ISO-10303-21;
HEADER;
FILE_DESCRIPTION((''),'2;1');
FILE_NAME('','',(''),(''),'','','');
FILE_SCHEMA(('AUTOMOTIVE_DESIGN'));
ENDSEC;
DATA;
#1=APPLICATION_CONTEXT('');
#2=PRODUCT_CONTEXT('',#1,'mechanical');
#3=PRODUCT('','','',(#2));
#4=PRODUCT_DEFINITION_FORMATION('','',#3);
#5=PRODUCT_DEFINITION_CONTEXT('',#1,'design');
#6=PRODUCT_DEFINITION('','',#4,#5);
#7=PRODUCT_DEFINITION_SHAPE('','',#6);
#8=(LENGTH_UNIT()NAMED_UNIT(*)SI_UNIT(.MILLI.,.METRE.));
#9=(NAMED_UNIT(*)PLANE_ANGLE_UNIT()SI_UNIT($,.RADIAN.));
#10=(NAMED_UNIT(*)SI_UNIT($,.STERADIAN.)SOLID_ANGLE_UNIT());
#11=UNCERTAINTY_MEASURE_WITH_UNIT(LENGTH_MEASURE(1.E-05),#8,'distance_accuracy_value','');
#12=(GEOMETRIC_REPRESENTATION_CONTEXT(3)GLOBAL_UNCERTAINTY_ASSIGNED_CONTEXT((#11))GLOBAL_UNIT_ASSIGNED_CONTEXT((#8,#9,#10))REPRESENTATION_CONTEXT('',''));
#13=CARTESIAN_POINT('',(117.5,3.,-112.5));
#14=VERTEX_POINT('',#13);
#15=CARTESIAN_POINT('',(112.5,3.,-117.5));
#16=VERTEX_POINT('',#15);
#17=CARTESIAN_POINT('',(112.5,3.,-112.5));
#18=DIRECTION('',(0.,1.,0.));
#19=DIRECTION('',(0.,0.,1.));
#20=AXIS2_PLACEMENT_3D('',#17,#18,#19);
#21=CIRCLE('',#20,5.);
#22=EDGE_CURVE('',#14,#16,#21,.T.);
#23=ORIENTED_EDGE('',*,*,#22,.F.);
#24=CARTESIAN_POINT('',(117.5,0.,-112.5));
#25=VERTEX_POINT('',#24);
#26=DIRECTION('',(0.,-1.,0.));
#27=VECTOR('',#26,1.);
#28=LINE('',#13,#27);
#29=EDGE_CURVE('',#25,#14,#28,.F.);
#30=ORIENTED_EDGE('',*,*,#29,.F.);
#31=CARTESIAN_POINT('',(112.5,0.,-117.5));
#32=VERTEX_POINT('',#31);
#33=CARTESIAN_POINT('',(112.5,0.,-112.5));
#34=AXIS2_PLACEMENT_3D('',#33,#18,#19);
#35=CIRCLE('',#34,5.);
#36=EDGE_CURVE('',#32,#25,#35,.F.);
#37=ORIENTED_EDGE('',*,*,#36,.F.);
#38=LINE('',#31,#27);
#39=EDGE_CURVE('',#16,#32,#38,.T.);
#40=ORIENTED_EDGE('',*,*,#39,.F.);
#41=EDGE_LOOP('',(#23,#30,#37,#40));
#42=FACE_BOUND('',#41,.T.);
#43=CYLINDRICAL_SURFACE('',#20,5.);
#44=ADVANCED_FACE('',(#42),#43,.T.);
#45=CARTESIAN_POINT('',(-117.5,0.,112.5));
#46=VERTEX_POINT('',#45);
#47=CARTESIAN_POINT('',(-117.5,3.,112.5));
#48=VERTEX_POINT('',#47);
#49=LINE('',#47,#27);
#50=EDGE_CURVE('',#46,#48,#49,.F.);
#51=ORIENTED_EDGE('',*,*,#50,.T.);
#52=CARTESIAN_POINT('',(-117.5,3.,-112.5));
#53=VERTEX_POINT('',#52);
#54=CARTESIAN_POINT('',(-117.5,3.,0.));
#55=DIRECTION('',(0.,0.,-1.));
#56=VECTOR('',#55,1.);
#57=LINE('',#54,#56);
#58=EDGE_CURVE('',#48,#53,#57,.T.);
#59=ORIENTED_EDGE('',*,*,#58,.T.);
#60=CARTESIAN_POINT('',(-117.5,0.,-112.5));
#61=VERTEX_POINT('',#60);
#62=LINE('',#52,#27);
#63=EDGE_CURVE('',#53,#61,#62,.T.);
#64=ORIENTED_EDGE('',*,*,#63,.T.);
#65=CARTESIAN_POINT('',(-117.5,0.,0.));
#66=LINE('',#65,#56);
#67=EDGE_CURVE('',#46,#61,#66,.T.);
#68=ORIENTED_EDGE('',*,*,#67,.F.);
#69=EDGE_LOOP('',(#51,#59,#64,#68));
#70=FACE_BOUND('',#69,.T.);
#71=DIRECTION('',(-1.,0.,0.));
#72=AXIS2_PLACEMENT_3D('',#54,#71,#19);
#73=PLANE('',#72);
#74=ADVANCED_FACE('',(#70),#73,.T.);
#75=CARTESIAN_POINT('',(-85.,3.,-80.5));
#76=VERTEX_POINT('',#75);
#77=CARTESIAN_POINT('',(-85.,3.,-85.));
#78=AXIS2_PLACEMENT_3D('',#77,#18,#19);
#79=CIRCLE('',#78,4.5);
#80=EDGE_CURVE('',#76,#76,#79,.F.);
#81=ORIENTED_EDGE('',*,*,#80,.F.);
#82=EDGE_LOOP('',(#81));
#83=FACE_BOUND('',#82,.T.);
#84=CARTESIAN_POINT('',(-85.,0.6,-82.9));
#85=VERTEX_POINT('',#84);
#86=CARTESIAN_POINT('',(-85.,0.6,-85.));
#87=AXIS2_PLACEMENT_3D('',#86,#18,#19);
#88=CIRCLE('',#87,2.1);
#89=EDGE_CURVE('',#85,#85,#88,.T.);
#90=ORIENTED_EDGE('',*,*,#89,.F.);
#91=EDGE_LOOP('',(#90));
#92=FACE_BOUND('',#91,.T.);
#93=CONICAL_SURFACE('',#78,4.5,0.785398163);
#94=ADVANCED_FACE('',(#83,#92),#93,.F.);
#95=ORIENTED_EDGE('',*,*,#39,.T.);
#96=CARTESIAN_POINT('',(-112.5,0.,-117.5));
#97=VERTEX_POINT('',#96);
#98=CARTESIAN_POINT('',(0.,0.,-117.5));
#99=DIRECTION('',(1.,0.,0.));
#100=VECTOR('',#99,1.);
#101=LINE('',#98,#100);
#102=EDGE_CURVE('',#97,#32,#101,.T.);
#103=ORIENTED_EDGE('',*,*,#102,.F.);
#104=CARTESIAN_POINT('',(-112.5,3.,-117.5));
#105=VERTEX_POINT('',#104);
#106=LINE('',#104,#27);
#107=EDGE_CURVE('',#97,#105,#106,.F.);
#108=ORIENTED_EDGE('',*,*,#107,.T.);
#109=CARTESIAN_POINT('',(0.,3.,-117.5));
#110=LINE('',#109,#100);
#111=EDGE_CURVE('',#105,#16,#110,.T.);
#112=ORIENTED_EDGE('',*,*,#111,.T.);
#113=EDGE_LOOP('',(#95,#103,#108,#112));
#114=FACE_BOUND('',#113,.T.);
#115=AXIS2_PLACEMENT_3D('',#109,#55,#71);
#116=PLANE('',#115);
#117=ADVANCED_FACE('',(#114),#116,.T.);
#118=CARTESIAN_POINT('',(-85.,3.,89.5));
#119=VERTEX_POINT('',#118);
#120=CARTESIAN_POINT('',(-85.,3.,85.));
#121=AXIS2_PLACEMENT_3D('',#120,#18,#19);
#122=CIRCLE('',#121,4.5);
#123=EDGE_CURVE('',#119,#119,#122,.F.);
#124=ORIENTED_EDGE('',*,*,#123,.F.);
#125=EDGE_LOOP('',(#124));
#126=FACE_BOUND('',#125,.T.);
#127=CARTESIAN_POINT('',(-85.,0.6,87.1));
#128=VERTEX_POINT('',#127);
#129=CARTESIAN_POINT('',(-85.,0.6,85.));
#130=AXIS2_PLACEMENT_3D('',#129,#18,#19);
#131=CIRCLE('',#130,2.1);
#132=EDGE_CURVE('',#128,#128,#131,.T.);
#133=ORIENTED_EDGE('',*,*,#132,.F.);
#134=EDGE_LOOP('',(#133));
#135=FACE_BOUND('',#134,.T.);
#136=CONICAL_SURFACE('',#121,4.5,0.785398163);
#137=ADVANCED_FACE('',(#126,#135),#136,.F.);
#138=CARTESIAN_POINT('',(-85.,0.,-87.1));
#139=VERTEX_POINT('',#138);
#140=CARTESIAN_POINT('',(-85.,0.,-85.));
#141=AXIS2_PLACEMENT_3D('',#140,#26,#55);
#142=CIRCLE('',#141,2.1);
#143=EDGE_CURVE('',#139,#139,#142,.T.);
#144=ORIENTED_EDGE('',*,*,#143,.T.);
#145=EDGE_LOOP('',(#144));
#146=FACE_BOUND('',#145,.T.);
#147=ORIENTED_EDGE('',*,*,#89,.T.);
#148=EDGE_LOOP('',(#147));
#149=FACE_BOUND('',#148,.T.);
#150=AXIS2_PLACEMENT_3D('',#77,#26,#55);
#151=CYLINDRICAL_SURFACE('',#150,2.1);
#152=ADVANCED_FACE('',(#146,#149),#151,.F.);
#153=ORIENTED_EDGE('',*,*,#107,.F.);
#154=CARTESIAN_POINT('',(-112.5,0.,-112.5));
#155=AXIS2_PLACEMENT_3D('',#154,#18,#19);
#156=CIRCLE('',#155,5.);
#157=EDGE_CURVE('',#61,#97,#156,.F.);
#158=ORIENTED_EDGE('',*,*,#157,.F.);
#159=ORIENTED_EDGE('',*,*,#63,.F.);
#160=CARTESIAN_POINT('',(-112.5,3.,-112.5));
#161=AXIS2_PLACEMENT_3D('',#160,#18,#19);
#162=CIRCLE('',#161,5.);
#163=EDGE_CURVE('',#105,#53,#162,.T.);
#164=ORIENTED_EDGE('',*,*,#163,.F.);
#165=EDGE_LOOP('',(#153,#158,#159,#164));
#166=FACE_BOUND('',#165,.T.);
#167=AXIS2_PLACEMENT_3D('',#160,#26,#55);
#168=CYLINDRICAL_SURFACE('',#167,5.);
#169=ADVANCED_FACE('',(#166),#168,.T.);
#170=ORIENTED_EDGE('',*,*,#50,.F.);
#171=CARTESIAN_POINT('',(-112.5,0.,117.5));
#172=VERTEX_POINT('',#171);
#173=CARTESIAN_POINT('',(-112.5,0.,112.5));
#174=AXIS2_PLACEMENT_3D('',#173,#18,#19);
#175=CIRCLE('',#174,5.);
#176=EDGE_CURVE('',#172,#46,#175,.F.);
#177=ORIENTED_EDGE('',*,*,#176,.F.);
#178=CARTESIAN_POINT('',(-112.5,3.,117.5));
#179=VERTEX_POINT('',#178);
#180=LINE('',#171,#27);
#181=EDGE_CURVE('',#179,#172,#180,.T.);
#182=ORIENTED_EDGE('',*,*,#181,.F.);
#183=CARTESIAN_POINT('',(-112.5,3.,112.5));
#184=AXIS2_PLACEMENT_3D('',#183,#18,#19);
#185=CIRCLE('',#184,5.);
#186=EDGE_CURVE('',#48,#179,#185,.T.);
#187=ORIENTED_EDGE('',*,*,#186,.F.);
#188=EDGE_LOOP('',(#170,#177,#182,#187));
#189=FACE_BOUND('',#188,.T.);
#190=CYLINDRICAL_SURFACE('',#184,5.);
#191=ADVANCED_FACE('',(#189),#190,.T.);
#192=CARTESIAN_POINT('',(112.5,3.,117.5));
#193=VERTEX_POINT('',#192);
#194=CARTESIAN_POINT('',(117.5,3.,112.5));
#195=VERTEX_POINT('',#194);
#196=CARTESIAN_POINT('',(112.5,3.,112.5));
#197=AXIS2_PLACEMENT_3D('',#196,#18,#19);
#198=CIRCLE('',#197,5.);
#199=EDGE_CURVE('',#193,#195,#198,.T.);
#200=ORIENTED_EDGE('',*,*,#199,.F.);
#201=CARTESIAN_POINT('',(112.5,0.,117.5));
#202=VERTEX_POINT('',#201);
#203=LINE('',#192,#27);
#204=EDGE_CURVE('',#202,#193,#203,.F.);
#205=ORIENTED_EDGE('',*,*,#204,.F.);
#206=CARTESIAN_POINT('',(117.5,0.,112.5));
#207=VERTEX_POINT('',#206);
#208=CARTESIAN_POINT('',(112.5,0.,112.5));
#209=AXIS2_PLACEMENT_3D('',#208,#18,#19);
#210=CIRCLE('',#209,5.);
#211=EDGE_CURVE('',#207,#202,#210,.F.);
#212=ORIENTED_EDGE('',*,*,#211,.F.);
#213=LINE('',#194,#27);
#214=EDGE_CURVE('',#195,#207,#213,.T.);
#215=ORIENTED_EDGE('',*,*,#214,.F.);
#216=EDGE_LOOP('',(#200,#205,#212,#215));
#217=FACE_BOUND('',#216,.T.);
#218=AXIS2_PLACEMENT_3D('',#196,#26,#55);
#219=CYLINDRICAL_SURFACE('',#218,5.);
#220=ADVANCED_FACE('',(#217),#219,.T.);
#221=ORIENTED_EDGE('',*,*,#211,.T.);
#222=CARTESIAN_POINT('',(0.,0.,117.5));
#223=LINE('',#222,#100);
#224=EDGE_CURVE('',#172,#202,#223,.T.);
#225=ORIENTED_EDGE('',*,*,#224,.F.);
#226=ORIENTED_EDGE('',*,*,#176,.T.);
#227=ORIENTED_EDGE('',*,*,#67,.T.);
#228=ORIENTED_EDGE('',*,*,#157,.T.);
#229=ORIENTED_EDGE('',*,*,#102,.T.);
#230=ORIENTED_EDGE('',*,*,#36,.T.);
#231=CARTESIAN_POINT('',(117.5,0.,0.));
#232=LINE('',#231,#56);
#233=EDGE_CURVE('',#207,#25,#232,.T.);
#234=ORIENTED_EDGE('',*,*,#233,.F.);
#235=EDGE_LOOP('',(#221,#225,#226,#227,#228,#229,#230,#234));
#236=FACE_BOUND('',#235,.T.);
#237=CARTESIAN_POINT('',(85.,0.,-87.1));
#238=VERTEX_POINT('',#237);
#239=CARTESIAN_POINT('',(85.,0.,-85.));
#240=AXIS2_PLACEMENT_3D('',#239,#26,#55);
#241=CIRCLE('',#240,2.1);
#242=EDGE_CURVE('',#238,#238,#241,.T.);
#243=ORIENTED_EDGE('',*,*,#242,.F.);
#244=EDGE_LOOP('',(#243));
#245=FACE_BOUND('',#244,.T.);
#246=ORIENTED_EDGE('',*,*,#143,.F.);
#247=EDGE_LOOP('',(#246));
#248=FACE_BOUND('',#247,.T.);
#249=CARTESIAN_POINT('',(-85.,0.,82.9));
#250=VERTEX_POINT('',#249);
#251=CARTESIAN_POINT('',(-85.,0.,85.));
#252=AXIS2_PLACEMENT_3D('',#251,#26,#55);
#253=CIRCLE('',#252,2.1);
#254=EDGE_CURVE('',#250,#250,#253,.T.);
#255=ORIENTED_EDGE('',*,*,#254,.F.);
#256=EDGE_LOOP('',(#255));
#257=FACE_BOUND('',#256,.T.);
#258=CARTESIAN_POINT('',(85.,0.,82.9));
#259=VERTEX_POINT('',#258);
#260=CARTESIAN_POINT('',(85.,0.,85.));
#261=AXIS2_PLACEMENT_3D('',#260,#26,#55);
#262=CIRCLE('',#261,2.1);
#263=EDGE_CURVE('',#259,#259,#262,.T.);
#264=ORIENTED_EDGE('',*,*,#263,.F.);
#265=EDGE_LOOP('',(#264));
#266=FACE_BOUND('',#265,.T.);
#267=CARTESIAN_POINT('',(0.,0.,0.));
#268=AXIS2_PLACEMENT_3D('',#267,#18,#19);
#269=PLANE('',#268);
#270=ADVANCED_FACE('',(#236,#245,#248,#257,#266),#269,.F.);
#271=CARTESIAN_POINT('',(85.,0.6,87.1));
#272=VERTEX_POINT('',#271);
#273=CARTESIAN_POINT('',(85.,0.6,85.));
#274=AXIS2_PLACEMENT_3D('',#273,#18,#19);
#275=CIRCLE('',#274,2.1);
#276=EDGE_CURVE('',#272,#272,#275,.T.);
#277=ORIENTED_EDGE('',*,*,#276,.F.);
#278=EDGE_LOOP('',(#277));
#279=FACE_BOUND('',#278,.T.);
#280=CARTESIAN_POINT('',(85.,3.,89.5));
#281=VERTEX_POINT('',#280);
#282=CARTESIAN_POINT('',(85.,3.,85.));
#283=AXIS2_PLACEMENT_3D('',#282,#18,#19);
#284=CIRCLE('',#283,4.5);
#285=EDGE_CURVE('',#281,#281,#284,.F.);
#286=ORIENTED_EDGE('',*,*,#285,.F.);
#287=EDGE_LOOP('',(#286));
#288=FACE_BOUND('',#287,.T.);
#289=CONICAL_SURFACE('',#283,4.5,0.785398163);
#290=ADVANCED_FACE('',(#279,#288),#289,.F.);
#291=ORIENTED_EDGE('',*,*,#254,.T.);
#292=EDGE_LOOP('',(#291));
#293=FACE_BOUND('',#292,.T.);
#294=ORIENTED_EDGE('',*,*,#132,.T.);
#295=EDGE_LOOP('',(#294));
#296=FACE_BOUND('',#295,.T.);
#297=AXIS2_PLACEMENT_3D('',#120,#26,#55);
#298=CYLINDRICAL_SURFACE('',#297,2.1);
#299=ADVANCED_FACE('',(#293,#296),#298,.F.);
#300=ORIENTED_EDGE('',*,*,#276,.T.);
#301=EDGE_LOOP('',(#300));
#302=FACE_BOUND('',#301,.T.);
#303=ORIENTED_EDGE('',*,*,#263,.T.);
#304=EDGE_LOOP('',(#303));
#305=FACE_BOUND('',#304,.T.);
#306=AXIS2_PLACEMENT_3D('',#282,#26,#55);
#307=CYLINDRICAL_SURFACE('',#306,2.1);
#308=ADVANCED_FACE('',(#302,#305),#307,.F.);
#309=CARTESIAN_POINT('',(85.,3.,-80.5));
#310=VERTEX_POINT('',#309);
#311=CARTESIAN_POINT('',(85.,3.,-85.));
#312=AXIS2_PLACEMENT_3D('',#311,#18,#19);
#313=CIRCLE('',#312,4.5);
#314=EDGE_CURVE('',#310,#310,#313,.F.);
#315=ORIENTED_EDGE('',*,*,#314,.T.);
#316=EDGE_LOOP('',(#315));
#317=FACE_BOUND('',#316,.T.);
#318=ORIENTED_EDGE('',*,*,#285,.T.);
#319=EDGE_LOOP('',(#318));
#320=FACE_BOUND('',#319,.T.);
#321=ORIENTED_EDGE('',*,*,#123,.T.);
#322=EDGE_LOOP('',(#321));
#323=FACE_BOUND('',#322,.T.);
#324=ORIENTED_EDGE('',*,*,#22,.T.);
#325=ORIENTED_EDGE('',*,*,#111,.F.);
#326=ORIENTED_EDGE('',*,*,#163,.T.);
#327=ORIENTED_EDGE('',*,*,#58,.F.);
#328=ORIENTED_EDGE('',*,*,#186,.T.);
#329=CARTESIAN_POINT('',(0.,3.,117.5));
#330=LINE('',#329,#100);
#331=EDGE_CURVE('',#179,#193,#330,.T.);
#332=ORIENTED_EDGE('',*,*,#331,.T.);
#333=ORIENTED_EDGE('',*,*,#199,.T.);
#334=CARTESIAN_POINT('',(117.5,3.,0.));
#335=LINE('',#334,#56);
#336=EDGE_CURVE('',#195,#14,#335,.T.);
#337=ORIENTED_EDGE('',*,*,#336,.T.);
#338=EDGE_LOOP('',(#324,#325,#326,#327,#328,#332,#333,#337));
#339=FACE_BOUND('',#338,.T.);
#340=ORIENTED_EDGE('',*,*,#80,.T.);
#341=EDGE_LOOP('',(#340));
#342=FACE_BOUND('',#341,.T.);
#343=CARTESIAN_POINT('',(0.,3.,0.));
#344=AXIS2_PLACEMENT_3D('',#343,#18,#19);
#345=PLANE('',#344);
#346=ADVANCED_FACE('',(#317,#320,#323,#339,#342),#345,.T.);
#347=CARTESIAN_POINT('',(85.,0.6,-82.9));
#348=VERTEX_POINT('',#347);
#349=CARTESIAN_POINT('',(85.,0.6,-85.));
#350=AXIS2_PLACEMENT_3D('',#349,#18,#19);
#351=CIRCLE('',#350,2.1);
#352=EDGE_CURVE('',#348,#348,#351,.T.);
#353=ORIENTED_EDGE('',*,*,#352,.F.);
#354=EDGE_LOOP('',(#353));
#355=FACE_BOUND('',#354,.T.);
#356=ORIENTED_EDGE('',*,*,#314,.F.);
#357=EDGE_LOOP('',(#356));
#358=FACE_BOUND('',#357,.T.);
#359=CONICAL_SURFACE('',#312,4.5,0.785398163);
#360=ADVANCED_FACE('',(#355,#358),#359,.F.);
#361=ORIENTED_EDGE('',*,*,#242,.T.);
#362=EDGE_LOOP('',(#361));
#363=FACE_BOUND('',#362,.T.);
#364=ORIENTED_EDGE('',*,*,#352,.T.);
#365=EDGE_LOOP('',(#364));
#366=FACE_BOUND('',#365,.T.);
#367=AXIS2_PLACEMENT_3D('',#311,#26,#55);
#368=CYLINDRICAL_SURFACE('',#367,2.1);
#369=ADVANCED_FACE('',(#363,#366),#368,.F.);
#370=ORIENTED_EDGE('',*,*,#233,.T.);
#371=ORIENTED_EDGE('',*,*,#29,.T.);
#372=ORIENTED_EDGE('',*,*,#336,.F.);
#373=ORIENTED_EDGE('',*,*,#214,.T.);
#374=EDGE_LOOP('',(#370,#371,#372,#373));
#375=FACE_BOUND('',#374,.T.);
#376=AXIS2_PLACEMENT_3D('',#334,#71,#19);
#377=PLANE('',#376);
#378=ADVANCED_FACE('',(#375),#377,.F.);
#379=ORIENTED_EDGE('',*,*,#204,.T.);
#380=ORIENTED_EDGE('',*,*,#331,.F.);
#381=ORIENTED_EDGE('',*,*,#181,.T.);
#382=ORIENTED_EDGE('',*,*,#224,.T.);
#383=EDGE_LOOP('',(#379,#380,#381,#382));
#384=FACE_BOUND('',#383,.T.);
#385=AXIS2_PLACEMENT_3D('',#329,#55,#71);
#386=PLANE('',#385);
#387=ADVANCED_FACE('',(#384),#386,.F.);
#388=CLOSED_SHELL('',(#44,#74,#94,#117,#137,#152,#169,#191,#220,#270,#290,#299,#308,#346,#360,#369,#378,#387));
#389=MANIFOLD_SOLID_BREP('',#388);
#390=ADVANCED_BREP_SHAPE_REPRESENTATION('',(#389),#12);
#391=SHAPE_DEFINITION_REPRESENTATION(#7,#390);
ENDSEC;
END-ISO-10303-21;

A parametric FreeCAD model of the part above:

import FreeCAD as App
import Part
import Sketcher

V = App.Vector


def edges_at(feature, points):
    """Names of the edges that pass closest to the given points."""
    edges = feature.Shape.Edges
    near = lambda p: min(range(len(edges)), key=lambda i: edges[i].distToShape(Part.Vertex(*p))[0])
    return sorted({f"Edge{near(p) + 1}" for p in points})

doc = App.newDocument("Part")
body = doc.addObject("PartDesign::Body", "Body")

sketch1 = body.newObject("Sketcher::SketchObject", "Sketch")
sketch1.AttachmentSupport = (doc.getObject("XZ_Plane"), [""])
sketch1.MapMode = "FlatFace"
sketch1.addGeometry(Part.LineSegment(V(-117.5, -117.5, 0), V(-117.5, 117.5, 0)), False)
sketch1.addGeometry(Part.LineSegment(V(-117.5, 117.5, 0), V(117.5, 117.5, 0)), False)
sketch1.addGeometry(Part.LineSegment(V(117.5, 117.5, 0), V(117.5, -117.5, 0)), False)
sketch1.addGeometry(Part.LineSegment(V(117.5, -117.5, 0), V(-117.5, -117.5, 0)), False)
sketch1.addConstraint(Sketcher.Constraint("Coincident", 0, 2, 1, 1))
sketch1.addConstraint(Sketcher.Constraint("Coincident", 1, 2, 2, 1))
sketch1.addConstraint(Sketcher.Constraint("Coincident", 2, 2, 3, 1))
sketch1.addConstraint(Sketcher.Constraint("Coincident", 3, 2, 0, 1))
sketch1.addConstraint(Sketcher.Constraint("Vertical", 0))
sketch1.addConstraint(Sketcher.Constraint("Horizontal", 1))
sketch1.addConstraint(Sketcher.Constraint("Vertical", 2))
sketch1.addConstraint(Sketcher.Constraint("Horizontal", 3))
sketch1.addConstraint(Sketcher.Constraint("Symmetric", 0, 2, 2, 2, -1, 1))
sketch1.addConstraint(Sketcher.Constraint("Equal", 3, 0))
sketch1.addConstraint(Sketcher.Constraint("DistanceX", 1, 1, 1, 2, 235.0))
pad1 = body.newObject("PartDesign::Pad", "Pad")
pad1.Profile = sketch1
pad1.Length = 3
pad1.Reversed = True

sketch2 = body.newObject("Sketcher::SketchObject", "Sketch001")
sketch2.AttachmentSupport = (doc.getObject("XZ_Plane"), [""])
sketch2.MapMode = "FlatFace"
sketch2.addGeometry(Part.Circle(V(85, -85, 0), V(0, 0, 1), 2.1), False)
sketch2.addGeometry(Part.Circle(V(-85, 85, 0), V(0, 0, 1), 2.1), False)
sketch2.addGeometry(Part.Circle(V(85, 85, 0), V(0, 0, 1), 2.1), False)
sketch2.addGeometry(Part.Circle(V(-85, -85, 0), V(0, 0, 1), 2.1), False)
sketch2.addConstraint(Sketcher.Constraint("Equal", 0, 1))
sketch2.addConstraint(Sketcher.Constraint("Equal", 1, 2))
sketch2.addConstraint(Sketcher.Constraint("Equal", 2, 3))
sketch2.addConstraint(Sketcher.Constraint("Symmetric", 0, 3, 1, 3, -1, 1))
sketch2.addConstraint(Sketcher.Constraint("Symmetric", 2, 3, 3, 3, -1, 1))
sketch2.addConstraint(Sketcher.Constraint("Symmetric", 1, 3, 2, 3, -2))
sketch2.addConstraint(Sketcher.Constraint("Diameter", 0, 4.2))
sketch2.addConstraint(Sketcher.Constraint("DistanceX", -1, 1, 0, 3, 85.0))
sketch2.addConstraint(Sketcher.Constraint("DistanceY", 0, 3, -1, 1, 85.0))
pocket1 = body.newObject("PartDesign::Pocket", "Pocket")
pocket1.Profile = sketch2
pocket1.Length = 3
doc.recompute()

fillet = body.newObject("PartDesign::Fillet", "Fillet")
fillet.Base = (pocket1, edges_at(pocket1, [
    (-117.5, 1.5, 117.5),
    (-117.5, 1.5, -117.5),
    (117.5, 1.5, -117.5),
    (117.5, 1.5, 117.5),
]))
fillet.Radius = 5
doc.recompute()

chamfer = body.newObject("PartDesign::Chamfer", "Chamfer")
chamfer.Base = (fillet, edges_at(fillet, [
    (-85, 3, -82.9),
    (85, 3, 87.1),
    (-85, 3, 87.1),
    (85, 3, -82.9),
]))
chamfer.Size = 2.4

doc.recompute()
